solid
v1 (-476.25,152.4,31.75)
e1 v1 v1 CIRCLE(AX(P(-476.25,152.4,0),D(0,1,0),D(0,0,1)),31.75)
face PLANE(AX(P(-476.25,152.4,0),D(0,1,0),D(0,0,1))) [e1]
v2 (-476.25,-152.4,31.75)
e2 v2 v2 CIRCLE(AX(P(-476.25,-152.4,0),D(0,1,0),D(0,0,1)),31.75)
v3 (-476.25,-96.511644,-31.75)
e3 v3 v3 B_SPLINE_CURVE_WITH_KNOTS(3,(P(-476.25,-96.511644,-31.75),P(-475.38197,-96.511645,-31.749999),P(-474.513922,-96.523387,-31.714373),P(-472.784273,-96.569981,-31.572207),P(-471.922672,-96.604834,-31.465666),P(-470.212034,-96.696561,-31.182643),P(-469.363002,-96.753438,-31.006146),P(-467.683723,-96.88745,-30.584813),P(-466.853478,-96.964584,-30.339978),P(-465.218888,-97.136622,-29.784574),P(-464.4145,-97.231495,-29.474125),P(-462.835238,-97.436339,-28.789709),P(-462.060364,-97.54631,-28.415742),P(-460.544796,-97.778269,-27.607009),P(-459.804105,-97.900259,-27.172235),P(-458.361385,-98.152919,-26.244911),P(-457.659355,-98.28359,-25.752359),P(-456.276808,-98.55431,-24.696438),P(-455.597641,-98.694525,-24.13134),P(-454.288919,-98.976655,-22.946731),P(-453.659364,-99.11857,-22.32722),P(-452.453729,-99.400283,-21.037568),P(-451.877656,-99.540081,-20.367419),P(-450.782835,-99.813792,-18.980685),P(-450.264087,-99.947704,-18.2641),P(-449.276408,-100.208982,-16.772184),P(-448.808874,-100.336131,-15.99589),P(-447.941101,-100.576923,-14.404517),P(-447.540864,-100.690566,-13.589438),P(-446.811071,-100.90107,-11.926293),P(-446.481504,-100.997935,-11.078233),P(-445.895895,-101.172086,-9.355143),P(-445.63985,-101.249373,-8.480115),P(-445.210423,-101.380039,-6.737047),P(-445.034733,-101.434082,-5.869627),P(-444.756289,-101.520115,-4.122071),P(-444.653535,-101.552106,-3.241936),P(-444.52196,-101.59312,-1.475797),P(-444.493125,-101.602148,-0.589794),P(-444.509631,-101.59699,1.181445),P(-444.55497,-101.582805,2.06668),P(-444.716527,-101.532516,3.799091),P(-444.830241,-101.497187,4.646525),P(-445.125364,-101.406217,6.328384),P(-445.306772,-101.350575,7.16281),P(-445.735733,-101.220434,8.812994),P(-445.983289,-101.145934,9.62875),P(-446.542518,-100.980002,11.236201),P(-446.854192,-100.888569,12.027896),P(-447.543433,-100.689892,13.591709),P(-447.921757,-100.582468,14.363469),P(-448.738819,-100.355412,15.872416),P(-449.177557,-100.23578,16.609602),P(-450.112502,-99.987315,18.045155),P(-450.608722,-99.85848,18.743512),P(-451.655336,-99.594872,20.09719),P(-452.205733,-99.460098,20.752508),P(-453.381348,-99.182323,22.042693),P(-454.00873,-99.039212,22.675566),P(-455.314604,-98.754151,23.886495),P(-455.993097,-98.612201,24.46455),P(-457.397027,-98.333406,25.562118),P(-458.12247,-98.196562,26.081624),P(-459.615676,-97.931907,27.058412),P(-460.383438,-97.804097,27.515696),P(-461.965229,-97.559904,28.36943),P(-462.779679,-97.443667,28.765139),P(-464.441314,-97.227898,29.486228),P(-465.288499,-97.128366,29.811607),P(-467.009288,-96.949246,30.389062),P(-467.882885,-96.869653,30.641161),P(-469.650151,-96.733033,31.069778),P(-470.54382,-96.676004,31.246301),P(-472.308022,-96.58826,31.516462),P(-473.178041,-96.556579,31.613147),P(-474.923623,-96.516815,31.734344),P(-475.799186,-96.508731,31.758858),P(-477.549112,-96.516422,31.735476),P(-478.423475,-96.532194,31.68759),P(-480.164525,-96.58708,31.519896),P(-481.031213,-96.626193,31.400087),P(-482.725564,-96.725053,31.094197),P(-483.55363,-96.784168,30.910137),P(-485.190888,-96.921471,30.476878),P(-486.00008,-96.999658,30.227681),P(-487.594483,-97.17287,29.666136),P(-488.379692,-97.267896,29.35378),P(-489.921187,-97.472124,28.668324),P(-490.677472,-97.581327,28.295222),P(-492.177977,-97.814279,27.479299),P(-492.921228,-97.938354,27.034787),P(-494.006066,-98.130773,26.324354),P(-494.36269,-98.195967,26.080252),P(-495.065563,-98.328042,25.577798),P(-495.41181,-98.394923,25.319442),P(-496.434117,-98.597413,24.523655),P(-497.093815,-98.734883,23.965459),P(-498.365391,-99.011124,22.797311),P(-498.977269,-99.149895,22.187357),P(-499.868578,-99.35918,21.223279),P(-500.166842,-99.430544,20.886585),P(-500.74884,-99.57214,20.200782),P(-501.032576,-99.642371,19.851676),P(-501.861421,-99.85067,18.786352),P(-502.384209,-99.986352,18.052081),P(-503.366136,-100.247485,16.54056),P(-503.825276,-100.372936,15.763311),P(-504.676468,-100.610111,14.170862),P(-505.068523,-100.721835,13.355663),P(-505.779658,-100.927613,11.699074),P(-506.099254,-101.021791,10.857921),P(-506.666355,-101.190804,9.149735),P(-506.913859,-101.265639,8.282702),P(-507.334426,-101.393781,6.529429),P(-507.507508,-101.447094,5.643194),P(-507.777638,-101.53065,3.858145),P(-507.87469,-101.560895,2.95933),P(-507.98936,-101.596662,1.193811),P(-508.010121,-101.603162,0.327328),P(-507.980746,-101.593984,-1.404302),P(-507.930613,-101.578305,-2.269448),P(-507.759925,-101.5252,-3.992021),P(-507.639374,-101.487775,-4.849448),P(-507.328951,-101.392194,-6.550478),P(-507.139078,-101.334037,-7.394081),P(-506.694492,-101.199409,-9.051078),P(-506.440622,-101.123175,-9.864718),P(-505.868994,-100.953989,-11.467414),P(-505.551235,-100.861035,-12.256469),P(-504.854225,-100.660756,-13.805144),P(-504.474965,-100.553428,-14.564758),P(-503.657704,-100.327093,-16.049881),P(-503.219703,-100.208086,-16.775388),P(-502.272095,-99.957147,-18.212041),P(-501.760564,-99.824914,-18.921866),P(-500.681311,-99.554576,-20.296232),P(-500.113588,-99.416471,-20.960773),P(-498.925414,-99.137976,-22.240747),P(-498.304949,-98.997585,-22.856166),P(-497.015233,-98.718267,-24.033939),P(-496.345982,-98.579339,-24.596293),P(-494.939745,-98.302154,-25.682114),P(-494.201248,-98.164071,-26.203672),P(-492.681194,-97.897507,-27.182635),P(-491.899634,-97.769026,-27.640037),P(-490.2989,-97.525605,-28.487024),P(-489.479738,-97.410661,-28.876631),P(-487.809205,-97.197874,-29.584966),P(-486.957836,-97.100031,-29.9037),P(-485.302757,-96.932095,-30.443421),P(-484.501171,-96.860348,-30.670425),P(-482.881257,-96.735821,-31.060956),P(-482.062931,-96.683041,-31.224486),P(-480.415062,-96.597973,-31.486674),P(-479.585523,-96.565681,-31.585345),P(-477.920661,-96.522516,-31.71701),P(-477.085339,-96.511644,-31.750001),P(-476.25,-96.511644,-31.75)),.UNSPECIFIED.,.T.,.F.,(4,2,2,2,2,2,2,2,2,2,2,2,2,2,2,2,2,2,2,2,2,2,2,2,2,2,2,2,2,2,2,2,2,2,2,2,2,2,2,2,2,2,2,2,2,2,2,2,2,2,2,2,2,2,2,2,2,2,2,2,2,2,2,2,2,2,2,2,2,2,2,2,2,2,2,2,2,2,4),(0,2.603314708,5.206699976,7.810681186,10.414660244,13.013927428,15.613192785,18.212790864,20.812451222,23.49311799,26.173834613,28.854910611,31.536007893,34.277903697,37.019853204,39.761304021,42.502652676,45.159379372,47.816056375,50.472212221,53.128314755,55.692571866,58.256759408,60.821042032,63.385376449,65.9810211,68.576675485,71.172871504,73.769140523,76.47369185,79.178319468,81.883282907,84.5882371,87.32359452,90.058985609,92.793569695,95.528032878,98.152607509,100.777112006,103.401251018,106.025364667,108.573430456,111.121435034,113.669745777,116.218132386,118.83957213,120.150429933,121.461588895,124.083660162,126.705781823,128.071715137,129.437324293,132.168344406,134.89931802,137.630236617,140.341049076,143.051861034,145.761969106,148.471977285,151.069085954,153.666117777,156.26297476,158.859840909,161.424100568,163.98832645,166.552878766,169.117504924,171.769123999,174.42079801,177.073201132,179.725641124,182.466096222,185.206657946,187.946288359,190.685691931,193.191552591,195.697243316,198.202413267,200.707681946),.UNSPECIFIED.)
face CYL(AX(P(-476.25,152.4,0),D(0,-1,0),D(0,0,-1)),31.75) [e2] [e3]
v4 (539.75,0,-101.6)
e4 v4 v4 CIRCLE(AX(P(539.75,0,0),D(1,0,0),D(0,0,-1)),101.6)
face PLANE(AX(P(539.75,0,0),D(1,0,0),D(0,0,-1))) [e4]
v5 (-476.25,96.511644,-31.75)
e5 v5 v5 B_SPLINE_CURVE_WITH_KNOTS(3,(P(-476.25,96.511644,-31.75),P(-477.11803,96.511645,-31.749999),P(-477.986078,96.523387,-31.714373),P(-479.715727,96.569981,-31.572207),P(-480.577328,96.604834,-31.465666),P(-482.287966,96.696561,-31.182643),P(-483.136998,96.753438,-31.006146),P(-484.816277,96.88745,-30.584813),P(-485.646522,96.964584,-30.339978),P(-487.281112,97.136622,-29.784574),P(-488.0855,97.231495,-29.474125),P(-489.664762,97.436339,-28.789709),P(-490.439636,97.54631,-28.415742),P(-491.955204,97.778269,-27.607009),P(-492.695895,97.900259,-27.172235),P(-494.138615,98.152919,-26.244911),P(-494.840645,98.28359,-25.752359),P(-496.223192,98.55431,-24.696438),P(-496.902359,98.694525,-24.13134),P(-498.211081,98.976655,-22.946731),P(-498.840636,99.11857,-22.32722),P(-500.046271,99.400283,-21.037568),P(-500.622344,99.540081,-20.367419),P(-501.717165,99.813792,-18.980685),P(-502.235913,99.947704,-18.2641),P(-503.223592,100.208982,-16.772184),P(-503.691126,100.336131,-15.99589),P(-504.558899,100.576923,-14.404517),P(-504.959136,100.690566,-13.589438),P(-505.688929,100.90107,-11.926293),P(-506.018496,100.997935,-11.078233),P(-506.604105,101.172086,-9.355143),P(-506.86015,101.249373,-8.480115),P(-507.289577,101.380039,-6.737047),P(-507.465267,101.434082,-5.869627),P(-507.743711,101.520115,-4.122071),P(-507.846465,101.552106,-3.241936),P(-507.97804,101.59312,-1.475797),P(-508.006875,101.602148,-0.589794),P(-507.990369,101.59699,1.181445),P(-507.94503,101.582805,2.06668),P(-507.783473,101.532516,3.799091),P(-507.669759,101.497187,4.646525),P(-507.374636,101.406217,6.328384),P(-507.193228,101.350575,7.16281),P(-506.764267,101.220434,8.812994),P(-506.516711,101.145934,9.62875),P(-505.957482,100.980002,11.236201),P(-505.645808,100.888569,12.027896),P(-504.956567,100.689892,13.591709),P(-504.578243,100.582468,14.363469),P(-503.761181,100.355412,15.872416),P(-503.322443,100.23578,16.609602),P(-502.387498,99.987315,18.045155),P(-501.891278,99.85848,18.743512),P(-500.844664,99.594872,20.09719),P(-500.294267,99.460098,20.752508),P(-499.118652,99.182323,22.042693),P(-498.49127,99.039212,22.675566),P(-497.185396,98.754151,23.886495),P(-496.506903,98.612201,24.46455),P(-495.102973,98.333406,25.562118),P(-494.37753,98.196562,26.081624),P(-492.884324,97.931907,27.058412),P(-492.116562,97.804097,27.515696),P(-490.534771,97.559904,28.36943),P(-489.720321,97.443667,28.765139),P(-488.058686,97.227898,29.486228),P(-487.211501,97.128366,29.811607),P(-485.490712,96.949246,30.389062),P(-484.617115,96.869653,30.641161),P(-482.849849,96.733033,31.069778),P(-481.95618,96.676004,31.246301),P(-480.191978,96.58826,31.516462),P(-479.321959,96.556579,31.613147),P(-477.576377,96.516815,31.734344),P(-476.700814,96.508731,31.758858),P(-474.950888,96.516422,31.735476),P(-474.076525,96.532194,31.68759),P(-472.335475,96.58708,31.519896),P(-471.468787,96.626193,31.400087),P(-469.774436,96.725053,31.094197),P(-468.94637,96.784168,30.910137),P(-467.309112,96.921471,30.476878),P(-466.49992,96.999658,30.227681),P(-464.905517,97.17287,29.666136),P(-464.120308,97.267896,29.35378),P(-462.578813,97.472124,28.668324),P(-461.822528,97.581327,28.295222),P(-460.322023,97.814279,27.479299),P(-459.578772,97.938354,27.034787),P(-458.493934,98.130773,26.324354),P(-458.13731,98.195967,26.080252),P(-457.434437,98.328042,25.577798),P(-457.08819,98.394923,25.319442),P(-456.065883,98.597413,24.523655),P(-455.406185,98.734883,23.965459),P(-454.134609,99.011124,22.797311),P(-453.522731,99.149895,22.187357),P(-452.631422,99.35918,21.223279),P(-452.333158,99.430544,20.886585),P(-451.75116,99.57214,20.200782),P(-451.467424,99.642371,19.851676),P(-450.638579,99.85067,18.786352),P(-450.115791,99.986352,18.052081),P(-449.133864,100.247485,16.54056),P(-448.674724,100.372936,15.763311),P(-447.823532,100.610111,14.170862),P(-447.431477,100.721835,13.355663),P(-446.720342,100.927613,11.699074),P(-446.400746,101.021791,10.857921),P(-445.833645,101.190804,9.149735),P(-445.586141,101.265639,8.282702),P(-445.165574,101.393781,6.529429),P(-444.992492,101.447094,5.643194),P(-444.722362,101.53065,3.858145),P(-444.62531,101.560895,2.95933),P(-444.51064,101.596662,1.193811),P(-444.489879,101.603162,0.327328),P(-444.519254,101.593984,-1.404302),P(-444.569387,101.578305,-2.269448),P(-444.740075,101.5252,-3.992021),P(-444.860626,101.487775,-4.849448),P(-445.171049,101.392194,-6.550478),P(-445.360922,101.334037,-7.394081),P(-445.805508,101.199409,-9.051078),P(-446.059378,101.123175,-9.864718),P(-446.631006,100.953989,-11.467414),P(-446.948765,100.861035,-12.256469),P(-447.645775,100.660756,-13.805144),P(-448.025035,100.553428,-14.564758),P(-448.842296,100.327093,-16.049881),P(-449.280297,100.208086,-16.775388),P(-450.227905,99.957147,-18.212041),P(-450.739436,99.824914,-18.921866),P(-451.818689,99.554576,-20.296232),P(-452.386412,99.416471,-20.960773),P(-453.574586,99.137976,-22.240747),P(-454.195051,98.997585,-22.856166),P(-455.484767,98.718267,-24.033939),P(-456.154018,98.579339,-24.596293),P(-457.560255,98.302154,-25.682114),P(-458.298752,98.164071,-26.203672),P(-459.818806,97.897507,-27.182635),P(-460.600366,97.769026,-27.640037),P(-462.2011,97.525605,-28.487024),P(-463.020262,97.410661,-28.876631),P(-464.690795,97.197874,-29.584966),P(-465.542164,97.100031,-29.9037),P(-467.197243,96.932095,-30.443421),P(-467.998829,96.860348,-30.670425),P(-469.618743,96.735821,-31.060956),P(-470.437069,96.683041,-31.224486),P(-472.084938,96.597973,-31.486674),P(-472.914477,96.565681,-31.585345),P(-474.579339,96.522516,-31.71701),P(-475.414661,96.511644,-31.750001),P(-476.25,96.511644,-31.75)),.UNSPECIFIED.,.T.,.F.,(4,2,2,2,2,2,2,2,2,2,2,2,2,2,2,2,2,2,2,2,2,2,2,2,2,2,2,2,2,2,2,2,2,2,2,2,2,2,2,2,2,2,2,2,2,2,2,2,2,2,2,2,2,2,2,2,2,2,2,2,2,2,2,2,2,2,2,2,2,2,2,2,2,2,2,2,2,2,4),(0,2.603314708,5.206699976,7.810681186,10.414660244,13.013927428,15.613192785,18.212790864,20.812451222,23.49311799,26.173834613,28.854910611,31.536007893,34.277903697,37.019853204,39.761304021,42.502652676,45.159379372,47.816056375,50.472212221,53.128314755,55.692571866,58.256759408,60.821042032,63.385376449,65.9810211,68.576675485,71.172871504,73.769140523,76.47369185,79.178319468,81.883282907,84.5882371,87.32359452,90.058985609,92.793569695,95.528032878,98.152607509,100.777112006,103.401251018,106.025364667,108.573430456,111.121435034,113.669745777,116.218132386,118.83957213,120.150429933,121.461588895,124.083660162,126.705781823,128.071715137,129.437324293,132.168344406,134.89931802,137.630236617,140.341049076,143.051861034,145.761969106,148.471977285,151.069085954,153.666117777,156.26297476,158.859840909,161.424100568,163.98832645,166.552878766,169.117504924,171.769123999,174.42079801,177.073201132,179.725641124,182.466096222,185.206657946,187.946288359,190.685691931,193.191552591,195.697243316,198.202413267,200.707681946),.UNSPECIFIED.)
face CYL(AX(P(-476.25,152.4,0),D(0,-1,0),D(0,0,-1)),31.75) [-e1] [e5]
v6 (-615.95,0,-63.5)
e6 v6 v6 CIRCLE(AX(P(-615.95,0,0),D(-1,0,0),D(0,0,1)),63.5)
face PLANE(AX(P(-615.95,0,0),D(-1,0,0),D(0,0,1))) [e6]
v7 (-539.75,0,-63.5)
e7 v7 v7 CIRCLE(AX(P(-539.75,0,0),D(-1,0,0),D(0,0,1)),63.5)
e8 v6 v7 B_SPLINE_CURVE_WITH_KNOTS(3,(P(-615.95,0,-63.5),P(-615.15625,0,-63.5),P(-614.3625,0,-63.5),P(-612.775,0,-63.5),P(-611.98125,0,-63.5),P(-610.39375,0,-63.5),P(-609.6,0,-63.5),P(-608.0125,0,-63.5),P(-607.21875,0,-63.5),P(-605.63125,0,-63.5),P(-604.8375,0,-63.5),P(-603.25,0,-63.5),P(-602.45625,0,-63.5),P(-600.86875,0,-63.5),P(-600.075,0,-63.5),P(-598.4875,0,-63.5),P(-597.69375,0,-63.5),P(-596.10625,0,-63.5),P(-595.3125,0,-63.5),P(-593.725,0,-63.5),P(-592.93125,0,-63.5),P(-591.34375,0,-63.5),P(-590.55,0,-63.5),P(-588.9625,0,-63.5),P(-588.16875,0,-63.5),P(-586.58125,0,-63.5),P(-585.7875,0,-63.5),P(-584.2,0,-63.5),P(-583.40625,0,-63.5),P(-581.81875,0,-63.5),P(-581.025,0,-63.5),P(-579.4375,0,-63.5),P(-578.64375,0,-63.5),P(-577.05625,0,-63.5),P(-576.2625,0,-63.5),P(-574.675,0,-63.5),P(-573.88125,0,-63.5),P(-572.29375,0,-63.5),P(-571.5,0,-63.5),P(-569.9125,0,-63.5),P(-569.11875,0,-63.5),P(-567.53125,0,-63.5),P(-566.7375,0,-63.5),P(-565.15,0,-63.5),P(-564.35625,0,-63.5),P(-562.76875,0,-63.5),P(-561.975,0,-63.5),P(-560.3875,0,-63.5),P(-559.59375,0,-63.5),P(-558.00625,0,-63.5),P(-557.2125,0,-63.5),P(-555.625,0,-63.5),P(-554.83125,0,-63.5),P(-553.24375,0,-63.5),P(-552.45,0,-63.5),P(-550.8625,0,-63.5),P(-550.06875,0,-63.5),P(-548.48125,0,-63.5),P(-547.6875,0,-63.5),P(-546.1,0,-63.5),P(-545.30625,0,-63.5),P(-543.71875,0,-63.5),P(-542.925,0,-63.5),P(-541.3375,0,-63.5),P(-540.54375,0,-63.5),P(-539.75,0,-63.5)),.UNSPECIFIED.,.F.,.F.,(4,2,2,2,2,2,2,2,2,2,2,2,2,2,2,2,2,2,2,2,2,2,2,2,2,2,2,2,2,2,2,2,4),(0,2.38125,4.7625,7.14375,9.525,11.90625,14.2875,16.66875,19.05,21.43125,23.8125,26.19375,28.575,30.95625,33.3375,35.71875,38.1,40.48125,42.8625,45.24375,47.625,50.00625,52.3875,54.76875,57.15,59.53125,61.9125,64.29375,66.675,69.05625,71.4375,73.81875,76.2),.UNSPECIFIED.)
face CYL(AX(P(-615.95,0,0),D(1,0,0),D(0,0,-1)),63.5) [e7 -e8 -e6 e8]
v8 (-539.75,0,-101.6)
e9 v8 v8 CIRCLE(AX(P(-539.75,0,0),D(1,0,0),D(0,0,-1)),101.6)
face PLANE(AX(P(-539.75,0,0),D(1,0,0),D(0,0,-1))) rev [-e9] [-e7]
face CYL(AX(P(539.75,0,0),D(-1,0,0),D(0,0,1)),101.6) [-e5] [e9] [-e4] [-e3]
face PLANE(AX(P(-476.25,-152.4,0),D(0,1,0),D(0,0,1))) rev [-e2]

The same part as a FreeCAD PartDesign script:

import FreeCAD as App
import Part
import Sketcher
Q = App.Units.Quantity

doc = App.newDocument("Part")
params = doc.addObject("Spreadsheet::Sheet", "Params")
for row, (alias, value) in enumerate([
    ("sketch1_diameter", "8 in"),
    ("pad1_length", "42.5 in"),
    ("sketch2_diameter", "2.5 in"),
    ("pad2_length", "12 in"),
    ("sketch3_diameter", "5 in"),
    ("pad3_length", "3 in"),
], start=1):
    params.set(f"A{row}", alias)
    params.set(f"B{row}", "=" + value)
    params.setAlias(f"B{row}", alias)

body = doc.addObject("PartDesign::Body", "Body")

# Sketch on YZ plane
sketch1 = body.newObject("Sketcher::SketchObject", "Sketch")
sketch1.AttachmentSupport = (doc.getObject("YZ_Plane"), [""])
sketch1.MapMode = "FlatFace"
sketch1.addGeometry(Part.Circle(App.Vector(0, 0, 0), App.Vector(0, 0, 1), 102), False)
sketch1.addConstraint([
    Sketcher.Constraint("Coincident", 0, 3, -1, 1),
    Sketcher.Constraint("Diameter", 0, Q("8 in")),
])
sketch1.setExpression("Constraints[1]", "Params.sketch1_diameter")
pad1 = body.newObject("PartDesign::Pad", "Pad")
pad1.Profile = sketch1
pad1.setExpression("Length", "Params.pad1_length")
pad1.Midplane = True

# Sketch on XZ plane
sketch2 = body.newObject("Sketcher::SketchObject", "Sketch001")
sketch2.AttachmentSupport = (doc.getObject("XZ_Plane"), [""])
sketch2.MapMode = "FlatFace"
sketch2.addGeometry(Part.Circle(App.Vector(-476, 0, 0), App.Vector(0, 0, 1), 32), False)
sketch2.addConstraint([
    Sketcher.Constraint("PointOnObject", 0, 3, -1),
    Sketcher.Constraint("Diameter", 0, Q("2.5 in")),
    Sketcher.Constraint("DistanceX", 0, 3, -1, 1, Q("18.75 in")),
])
sketch2.setExpression("Constraints[1]", "Params.sketch2_diameter")
pad2 = body.newObject("PartDesign::Pad", "Pad001")
pad2.Profile = sketch2
pad2.setExpression("Length", "Params.pad2_length")
pad2.Midplane = True

# Sketch on YZ plane
sketch3 = body.newObject("Sketcher::SketchObject", "Sketch002")
sketch3.AttachmentSupport = (doc.getObject("YZ_Plane"), [""])
sketch3.MapMode = "FlatFace"
sketch3.AttachmentOffset = App.Placement(App.Vector(0, 0, -21.25 * 25.4), App.Rotation())
sketch3.addGeometry(Part.Circle(App.Vector(0, 0, 0), App.Vector(0, 0, 1), 64), False)
sketch3.addConstraint([
    Sketcher.Constraint("Coincident", 0, 3, -1, 1),
    Sketcher.Constraint("Diameter", 0, Q("5 in")),
])
sketch3.setExpression("Constraints[1]", "Params.sketch3_diameter")
pad3 = body.newObject("PartDesign::Pad", "Pad002")
pad3.Profile = sketch3
pad3.setExpression("Length", "Params.pad3_length")
pad3.Reversed = True

doc.recompute()
